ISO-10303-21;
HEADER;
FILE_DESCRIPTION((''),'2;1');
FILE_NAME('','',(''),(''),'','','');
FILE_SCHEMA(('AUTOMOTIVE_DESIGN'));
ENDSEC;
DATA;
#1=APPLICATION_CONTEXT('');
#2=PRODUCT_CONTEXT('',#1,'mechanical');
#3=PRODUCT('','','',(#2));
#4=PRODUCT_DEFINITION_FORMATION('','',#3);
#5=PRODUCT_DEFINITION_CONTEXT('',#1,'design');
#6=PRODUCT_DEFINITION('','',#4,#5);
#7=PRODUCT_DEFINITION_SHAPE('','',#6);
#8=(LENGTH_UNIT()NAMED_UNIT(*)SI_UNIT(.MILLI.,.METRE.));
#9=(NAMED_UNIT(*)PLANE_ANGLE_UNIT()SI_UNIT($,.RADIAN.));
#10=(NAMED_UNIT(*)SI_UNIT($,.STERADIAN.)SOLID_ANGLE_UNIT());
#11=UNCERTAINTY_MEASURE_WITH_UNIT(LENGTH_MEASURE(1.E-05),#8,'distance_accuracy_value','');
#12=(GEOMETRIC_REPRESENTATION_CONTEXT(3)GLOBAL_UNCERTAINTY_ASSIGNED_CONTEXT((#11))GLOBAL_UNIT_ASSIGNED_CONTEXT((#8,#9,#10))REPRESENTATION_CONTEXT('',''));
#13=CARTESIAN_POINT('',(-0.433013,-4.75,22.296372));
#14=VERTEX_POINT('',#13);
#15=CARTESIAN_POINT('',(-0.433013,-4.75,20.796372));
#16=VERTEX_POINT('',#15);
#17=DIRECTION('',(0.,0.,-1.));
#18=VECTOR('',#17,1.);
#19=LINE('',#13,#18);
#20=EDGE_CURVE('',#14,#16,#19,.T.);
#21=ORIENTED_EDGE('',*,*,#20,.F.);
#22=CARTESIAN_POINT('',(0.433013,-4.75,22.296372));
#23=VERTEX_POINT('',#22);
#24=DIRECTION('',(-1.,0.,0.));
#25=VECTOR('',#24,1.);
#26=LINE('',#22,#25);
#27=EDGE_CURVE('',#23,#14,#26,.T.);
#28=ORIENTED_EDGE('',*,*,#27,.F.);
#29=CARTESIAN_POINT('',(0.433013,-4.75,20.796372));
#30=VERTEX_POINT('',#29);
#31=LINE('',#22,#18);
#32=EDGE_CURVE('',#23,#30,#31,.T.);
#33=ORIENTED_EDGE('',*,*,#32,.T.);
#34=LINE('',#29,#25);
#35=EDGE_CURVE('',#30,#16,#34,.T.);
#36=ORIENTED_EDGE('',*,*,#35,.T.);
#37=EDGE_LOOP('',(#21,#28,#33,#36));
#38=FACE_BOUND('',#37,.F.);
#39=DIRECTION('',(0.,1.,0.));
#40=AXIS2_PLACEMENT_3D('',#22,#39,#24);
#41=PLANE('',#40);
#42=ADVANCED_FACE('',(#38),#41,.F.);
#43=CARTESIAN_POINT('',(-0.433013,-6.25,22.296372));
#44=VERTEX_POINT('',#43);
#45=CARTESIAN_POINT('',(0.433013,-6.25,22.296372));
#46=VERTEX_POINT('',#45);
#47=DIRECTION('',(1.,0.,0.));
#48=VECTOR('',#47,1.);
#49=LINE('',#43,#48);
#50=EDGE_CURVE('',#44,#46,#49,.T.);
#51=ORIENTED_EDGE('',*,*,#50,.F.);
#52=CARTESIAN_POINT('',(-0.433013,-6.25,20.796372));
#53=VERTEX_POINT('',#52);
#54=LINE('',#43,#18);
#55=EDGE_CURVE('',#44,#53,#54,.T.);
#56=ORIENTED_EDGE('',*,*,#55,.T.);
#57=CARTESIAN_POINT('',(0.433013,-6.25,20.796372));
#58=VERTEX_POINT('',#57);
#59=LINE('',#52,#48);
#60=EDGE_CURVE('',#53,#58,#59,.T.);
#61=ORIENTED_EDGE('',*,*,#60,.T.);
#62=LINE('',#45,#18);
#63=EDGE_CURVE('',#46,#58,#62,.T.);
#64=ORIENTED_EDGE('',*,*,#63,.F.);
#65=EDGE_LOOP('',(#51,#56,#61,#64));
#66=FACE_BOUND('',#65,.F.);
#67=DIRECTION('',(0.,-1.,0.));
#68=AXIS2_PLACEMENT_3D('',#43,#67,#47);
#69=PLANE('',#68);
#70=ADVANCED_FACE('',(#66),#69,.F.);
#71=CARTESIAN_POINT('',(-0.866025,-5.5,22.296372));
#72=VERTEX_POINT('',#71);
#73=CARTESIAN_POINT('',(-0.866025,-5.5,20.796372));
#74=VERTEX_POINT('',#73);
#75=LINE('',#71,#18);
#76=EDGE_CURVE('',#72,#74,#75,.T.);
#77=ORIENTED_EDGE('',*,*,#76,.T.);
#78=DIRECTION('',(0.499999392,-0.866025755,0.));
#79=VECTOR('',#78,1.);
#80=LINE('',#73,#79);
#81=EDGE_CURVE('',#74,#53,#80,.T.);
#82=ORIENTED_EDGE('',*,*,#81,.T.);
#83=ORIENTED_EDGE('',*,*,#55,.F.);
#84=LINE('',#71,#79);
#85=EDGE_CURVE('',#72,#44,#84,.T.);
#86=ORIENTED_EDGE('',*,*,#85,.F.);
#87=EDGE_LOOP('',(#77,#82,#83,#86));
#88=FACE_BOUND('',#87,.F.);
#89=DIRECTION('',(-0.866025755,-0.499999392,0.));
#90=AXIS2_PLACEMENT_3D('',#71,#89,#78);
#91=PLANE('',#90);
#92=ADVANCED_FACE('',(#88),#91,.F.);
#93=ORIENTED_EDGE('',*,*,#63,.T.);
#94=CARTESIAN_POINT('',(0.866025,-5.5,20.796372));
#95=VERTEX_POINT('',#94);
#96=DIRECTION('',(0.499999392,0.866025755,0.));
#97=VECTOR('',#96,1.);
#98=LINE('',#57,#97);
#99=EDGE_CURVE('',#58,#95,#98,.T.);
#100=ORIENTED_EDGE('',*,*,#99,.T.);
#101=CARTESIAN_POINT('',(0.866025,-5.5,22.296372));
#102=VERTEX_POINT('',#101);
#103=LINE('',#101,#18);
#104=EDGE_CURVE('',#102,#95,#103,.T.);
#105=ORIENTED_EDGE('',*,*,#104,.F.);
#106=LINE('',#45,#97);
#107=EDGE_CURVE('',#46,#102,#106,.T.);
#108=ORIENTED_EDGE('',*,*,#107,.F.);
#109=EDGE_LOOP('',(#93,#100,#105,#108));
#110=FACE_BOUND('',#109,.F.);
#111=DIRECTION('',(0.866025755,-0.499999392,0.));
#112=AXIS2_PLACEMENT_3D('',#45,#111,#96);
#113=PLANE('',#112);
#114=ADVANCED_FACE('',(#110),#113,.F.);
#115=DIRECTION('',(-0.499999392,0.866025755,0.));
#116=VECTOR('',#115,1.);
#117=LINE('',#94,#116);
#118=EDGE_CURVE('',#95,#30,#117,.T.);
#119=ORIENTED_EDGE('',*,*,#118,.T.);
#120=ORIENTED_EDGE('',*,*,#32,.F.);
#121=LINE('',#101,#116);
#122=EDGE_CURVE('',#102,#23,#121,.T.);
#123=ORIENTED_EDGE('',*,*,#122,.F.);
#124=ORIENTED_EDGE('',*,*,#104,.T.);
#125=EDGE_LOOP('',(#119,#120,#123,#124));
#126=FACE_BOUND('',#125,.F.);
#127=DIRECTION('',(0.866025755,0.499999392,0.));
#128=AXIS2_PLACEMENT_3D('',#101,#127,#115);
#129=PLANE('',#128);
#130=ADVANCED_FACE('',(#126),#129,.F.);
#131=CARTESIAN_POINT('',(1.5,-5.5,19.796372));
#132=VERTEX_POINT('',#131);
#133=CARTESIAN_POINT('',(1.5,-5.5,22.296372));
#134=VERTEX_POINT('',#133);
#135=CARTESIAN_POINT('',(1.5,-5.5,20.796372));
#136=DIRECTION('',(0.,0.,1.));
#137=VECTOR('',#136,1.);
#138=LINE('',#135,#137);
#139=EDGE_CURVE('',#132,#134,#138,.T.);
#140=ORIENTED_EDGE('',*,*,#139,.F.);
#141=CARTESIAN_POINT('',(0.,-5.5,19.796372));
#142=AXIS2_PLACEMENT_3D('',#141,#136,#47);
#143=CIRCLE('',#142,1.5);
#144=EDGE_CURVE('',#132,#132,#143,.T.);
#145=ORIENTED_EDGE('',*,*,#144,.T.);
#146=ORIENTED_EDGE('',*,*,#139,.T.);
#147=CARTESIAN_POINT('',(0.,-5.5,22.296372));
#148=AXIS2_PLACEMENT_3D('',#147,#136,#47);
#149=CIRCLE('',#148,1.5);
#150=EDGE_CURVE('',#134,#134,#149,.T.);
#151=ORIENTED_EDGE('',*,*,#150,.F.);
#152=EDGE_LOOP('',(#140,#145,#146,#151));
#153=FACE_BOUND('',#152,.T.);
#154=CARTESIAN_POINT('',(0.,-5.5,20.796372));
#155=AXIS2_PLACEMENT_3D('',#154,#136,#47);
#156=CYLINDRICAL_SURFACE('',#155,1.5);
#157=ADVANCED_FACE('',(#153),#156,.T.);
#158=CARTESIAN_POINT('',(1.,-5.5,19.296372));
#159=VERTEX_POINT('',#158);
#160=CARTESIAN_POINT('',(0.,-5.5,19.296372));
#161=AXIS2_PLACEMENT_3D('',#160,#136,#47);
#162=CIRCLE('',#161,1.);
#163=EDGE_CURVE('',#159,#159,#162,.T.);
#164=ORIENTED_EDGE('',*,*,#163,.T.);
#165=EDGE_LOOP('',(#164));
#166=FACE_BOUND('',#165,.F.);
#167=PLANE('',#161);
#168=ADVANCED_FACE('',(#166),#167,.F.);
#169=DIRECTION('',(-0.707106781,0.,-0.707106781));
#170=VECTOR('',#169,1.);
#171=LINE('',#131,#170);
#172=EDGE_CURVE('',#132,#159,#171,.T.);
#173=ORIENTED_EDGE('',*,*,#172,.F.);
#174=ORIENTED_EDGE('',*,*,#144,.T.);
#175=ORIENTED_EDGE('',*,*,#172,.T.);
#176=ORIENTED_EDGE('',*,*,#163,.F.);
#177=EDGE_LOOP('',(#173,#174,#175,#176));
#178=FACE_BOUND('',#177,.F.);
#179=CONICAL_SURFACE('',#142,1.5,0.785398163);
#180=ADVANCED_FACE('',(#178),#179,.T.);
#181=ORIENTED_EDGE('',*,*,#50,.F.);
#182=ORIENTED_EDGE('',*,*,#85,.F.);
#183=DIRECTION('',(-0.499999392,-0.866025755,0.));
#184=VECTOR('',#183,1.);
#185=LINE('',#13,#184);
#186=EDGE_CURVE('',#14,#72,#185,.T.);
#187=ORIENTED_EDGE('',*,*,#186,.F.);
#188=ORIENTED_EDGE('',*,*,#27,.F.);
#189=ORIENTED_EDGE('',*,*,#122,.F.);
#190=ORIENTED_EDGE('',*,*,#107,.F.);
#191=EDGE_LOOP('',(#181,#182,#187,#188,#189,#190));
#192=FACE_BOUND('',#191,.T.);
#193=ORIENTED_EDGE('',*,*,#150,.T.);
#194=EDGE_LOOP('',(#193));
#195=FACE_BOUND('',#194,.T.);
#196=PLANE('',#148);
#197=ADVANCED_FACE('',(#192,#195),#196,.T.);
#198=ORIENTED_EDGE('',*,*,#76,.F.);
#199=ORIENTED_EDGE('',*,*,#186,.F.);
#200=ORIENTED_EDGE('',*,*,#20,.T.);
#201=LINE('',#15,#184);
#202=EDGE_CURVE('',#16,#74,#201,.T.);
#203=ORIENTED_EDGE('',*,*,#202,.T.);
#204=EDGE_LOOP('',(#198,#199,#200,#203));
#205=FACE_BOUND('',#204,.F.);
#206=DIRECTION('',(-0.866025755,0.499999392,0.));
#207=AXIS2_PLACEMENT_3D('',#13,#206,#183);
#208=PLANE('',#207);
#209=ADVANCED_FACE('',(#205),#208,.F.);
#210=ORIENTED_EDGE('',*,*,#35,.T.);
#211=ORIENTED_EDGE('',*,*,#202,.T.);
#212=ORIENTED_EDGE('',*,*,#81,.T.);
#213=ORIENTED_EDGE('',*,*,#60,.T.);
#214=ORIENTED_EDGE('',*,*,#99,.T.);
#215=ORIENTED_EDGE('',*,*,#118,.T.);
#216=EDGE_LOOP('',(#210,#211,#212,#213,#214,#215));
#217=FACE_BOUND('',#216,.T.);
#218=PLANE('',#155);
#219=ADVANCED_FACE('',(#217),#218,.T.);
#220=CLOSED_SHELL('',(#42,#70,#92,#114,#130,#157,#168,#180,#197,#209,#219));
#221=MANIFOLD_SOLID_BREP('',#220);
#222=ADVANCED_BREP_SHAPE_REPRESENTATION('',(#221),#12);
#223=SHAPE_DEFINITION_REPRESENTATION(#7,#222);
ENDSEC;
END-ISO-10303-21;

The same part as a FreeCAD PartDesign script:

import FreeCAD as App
import Part
import Sketcher
from FreeCAD import Vector


def edges_at(feature, points):
    """Names of the edges that pass closest to the given points."""
    edges = feature.Shape.Edges
    near = lambda p: min(range(len(edges)), key=lambda i: edges[i].distToShape(Part.Vertex(*p))[0])
    return sorted({f"Edge{near(p) + 1}" for p in points})

doc = App.newDocument("Part")
params = doc.addObject("Spreadsheet::Sheet", "Params")
for row, (alias, value) in enumerate([
    ("sketch1_height", "3 mm"),
    ("sketch1_width", "1.5 mm"),
    ("revolution_angle", "360 deg"),
    ("chamfer_size", "0.5 mm"),
    ("pocket1_length", "1.5 mm"),
], start=1):
    params.set(f"A{row}", alias)
    params.set(f"B{row}", "=" + value)
    params.setAlias(f"B{row}", alias)

body = doc.addObject("PartDesign::Body", "Body")

sketch1 = doc.addObject("Sketcher::SketchObject", "Sketch")
body.addObject(sketch1)
sketch1.AttachmentSupport = (doc.XZ_Plane, [""])
sketch1.MapMode = "FlatFace"
sketch1.AttachmentOffset = App.Placement(Vector(0, 0, 5.5), App.Rotation())
sketch1.addGeometry([
    Part.LineSegment(Vector(1.5, 22.3, 0), Vector(1.5, 19.3, 0)),
    Part.LineSegment(Vector(1.5, 19.3, 0), Vector(0, 19.3, 0)),
    Part.LineSegment(Vector(0, 19.3, 0), Vector(0, 22.3, 0)),
    Part.LineSegment(Vector(0, 22.3, 0), Vector(1.5, 22.3, 0)),
], False)
sketch1.addConstraint([
    Sketcher.Constraint("Coincident", 0, 2, 1, 1),
    Sketcher.Constraint("Coincident", 1, 2, 2, 1),
    Sketcher.Constraint("Coincident", 2, 2, 3, 1),
    Sketcher.Constraint("Coincident", 3, 2, 0, 1),
    Sketcher.Constraint("Vertical", 0),
    Sketcher.Constraint("Horizontal", 1),
    Sketcher.Constraint("Vertical", 2),
    Sketcher.Constraint("Horizontal", 3),
    Sketcher.Constraint("PointOnObject", 1, 2, -2),
    Sketcher.Constraint("DistanceY", 0, 2, 0, 1, 3.0),
    Sketcher.Constraint("DistanceX", 1, 2, 1, 1, 1.5),
    Sketcher.Constraint("DistanceY", -1, 1, 0, 2, 19.296372),
])
sketch1.setExpression("Constraints[9]", "Params.sketch1_height")
sketch1.setExpression("Constraints[10]", "Params.sketch1_width")
revolution = doc.addObject("PartDesign::Revolution", "Revolution")
body.addObject(revolution)
revolution.Profile = sketch1
revolution.ReferenceAxis = (sketch1, ["V_Axis"])
revolution.setExpression("Angle", "Params.revolution_angle")
doc.recompute()

chamfer = doc.addObject("PartDesign::Chamfer", "Chamfer")
body.addObject(chamfer)
chamfer.Base = (revolution, edges_at(revolution, [(-1.5, -5.5, 19.296)]))
chamfer.setExpression("Size", "Params.chamfer_size")

sketch2 = doc.addObject("Sketcher::SketchObject", "Sketch001")
body.addObject(sketch2)
sketch2.AttachmentSupport = (doc.XY_Plane, [""])
sketch2.MapMode = "FlatFace"
sketch2.AttachmentOffset = App.Placement(Vector(0, 0, 22.296372), App.Rotation())
sketch2.addGeometry([
    Part.LineSegment(Vector(-0.4, -4.8, 0), Vector(-0.9, -5.5, 0)),
    Part.LineSegment(Vector(-0.9, -5.5, 0), Vector(-0.4, -6.2, 0)),
    Part.LineSegment(Vector(-0.4, -6.2, 0), Vector(0.4, -6.2, 0)),
    Part.LineSegment(Vector(0.4, -6.2, 0), Vector(0.9, -5.5, 0)),
    Part.LineSegment(Vector(0.9, -5.5, 0), Vector(0.4, -4.8, 0)),
    Part.LineSegment(Vector(0.4, -4.8, 0), Vector(-0.4, -4.8, 0)),
], False)
sketch2.addConstraint([
    Sketcher.Constraint("Coincident", 0, 2, 1, 1),
    Sketcher.Constraint("Coincident", 1, 2, 2, 1),
    Sketcher.Constraint("Coincident", 2, 2, 3, 1),
    Sketcher.Constraint("Coincident", 3, 2, 4, 1),
    Sketcher.Constraint("Coincident", 4, 2, 5, 1),
    Sketcher.Constraint("Coincident", 5, 2, 0, 1),
    Sketcher.Constraint("Horizontal", 2),
    Sketcher.Constraint("Horizontal", 5),
    Sketcher.Constraint("Symmetric", 0, 2, 3, 2, -2),
    Sketcher.Constraint("Parallel", 0, 3),
    Sketcher.Constraint("Parallel", 1, 4),
    Sketcher.Constraint("Vertical", 2, 2, 4, 2),
    Sketcher.Constraint("Vertical", 1, 2, 5, 2),
    Sketcher.Constraint("DistanceY", 0, 2, -1, 1, 5.5),
    Sketcher.Constraint("DistanceY", 2, 2, 4, 2, 1.5),
    Sketcher.Constraint("DistanceX", 2, 1, 2, 2, 0.866026),
    Sketcher.Constraint("DistanceX", 0, 2, 3, 2, 1.73205),
])
pocket1 = doc.addObject("PartDesign::Pocket", "Pocket")
body.addObject(pocket1)
pocket1.Profile = sketch2
pocket1.setExpression("Length", "Params.pocket1_length")

doc.recompute()
